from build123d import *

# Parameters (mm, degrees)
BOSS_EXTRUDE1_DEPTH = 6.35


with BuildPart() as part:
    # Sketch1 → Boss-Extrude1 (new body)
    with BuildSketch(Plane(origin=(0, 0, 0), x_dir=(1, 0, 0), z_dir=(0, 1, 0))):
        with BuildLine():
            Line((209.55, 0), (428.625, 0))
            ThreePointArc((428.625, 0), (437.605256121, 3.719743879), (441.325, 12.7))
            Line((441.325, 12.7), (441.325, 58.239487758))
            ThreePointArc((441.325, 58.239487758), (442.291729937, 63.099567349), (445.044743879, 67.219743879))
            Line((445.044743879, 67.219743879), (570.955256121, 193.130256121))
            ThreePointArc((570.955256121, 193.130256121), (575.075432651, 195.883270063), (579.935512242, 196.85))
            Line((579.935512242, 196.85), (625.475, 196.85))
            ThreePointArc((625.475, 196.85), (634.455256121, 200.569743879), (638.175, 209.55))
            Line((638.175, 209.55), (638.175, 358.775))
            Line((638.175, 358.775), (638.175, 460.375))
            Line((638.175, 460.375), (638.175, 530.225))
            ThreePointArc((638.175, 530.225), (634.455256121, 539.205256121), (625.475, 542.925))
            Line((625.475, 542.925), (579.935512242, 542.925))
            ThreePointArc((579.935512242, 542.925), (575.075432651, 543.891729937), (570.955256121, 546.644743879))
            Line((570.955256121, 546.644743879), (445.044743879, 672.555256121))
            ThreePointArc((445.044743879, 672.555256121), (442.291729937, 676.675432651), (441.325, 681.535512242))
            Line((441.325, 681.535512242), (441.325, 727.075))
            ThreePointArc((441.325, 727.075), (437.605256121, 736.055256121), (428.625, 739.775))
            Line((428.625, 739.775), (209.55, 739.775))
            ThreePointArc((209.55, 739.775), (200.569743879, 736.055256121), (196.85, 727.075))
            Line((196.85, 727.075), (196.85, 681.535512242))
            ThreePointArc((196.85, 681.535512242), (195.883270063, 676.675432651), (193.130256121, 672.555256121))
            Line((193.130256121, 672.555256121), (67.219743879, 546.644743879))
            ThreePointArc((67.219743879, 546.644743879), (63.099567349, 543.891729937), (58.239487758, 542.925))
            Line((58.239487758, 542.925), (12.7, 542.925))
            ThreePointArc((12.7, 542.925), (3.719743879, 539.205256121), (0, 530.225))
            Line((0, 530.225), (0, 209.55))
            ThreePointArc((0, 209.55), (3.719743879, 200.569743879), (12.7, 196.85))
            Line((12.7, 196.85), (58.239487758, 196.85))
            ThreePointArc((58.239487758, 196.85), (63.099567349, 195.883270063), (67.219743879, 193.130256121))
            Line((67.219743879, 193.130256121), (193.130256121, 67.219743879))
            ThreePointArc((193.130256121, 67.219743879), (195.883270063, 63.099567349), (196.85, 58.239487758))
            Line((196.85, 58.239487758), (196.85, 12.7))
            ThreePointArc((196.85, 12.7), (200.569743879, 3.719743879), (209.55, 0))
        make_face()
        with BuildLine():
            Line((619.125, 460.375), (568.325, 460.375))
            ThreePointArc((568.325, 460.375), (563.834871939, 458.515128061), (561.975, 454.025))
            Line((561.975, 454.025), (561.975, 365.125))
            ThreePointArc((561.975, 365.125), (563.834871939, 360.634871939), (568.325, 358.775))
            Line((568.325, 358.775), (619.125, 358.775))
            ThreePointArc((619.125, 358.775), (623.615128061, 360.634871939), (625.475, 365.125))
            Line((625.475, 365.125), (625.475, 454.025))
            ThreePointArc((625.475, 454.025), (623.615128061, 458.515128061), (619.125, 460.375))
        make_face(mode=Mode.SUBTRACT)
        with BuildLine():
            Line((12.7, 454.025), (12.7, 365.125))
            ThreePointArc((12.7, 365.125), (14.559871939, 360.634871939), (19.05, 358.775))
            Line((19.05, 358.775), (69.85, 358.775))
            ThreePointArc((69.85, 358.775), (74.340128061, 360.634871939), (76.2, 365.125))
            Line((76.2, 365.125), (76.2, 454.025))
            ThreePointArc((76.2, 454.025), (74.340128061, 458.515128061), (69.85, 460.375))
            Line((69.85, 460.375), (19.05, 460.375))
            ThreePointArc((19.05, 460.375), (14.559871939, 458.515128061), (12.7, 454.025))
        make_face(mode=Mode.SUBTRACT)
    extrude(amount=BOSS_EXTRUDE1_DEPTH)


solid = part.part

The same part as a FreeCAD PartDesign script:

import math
import FreeCAD as App
import Part
import Sketcher

V = App.Vector
Q = App.Units.Quantity

doc = App.newDocument("Part")
body = doc.addObject("PartDesign::Body", "Body")

# Sketch on XZ plane
sketch1 = body.newObject("Sketcher::SketchObject", "Sketch")
sketch1.AttachmentSupport = (doc.getObject("XZ_Plane"), [""])
sketch1.MapMode = "FlatFace"
sketch1.addGeometry(Part.LineSegment(V(210, 0, 0), V(429, 0, 0)), False)
sketch1.addGeometry(Part.ArcOfCircle(Part.Circle(V(429, -13, 0), V(0, 0, 1), 13), math.radians(0), math.radians(90)), False)
sketch1.addGeometry(Part.LineSegment(V(441, -13, 0), V(441, -58, 0)), False)
sketch1.addGeometry(Part.ArcOfCircle(Part.Circle(V(454, -58, 0), V(0, 0, 1), 13), math.radians(180), math.radians(225)), False)
sketch1.addGeometry(Part.LineSegment(V(445, -67, 0), V(571, -193, 0)), False)
sketch1.addGeometry(Part.ArcOfCircle(Part.Circle(V(580, -184, 0), V(0, 0, 1), 13), math.radians(-135), math.radians(-90)), False)
sketch1.addGeometry(Part.LineSegment(V(580, -197, 0), V(625, -197, 0)), False)
sketch1.addGeometry(Part.ArcOfCircle(Part.Circle(V(625, -210, 0), V(0, 0, 1), 13), math.radians(0), math.radians(90)), False)
sketch1.addGeometry(Part.LineSegment(V(638, -210, 0), V(638, -530, 0)), False)
sketch1.addGeometry(Part.ArcOfCircle(Part.Circle(V(625, -530, 0), V(0, 0, 1), 13), math.radians(-90), math.radians(0)), False)
sketch1.addGeometry(Part.LineSegment(V(625, -543, 0), V(580, -543, 0)), False)
sketch1.addGeometry(Part.ArcOfCircle(Part.Circle(V(580, -556, 0), V(0, 0, 1), 13), math.radians(90), math.radians(135)), False)
sketch1.addGeometry(Part.LineSegment(V(571, -547, 0), V(445, -673, 0)), False)
sketch1.addGeometry(Part.ArcOfCircle(Part.Circle(V(454, -682, 0), V(0, 0, 1), 13), math.radians(135), math.radians(180)), False)
sketch1.addGeometry(Part.LineSegment(V(441, -682, 0), V(441, -727, 0)), False)
sketch1.addGeometry(Part.ArcOfCircle(Part.Circle(V(429, -727, 0), V(0, 0, 1), 13), math.radians(-90), math.radians(0)), False)
sketch1.addGeometry(Part.LineSegment(V(429, -740, 0), V(210, -740, 0)), False)
sketch1.addGeometry(Part.ArcOfCircle(Part.Circle(V(210, -727, 0), V(0, 0, 1), 13), math.radians(180), math.radians(270)), False)
sketch1.addGeometry(Part.LineSegment(V(197, -727, 0), V(197, -682, 0)), False)
sketch1.addGeometry(Part.ArcOfCircle(Part.Circle(V(184, -682, 0), V(0, 0, 1), 13), math.radians(0), math.radians(45)), False)
sketch1.addGeometry(Part.LineSegment(V(193, -673, 0), V(67, -547, 0)), False)
sketch1.addGeometry(Part.ArcOfCircle(Part.Circle(V(58, -556, 0), V(0, 0, 1), 13), math.radians(45), math.radians(90)), False)
sketch1.addGeometry(Part.LineSegment(V(58, -543, 0), V(13, -543, 0)), False)
sketch1.addGeometry(Part.ArcOfCircle(Part.Circle(V(13, -530, 0), V(0, 0, 1), 13), math.radians(180), math.radians(270)), False)
sketch1.addGeometry(Part.LineSegment(V(0, -530, 0), V(0, -210, 0)), False)
sketch1.addGeometry(Part.ArcOfCircle(Part.Circle(V(13, -210, 0), V(0, 0, 1), 13), math.radians(90), math.radians(180)), False)
sketch1.addGeometry(Part.LineSegment(V(13, -197, 0), V(58, -197, 0)), False)
sketch1.addGeometry(Part.ArcOfCircle(Part.Circle(V(58, -184, 0), V(0, 0, 1), 13), math.radians(-90), math.radians(-45)), False)
sketch1.addGeometry(Part.LineSegment(V(67, -193, 0), V(193, -67, 0)), False)
sketch1.addGeometry(Part.ArcOfCircle(Part.Circle(V(184, -58, 0), V(0, 0, 1), 13), math.radians(-45), math.radians(0)), False)
sketch1.addGeometry(Part.LineSegment(V(197, -58, 0), V(197, -13, 0)), False)
sketch1.addGeometry(Part.ArcOfCircle(Part.Circle(V(210, -13, 0), V(0, 0, 1), 13), math.radians(90), math.radians(180)), False)
sketch1.addGeometry(Part.LineSegment(V(13, -365, 0), V(13, -454, 0)), False)
sketch1.addGeometry(Part.ArcOfCircle(Part.Circle(V(19, -454, 0), V(0, 0, 1), 6), math.radians(180), math.radians(270)), False)
sketch1.addGeometry(Part.LineSegment(V(19, -460, 0), V(70, -460, 0)), False)
sketch1.addGeometry(Part.ArcOfCircle(Part.Circle(V(70, -454, 0), V(0, 0, 1), 6), math.radians(-90), math.radians(0)), False)
sketch1.addGeometry(Part.LineSegment(V(76, -454, 0), V(76, -365, 0)), False)
sketch1.addGeometry(Part.ArcOfCircle(Part.Circle(V(70, -365, 0), V(0, 0, 1), 6), math.radians(0), math.radians(90)), False)
sketch1.addGeometry(Part.LineSegment(V(70, -359, 0), V(19, -359, 0)), False)
sketch1.addGeometry(Part.ArcOfCircle(Part.Circle(V(19, -365, 0), V(0, 0, 1), 6), math.radians(90), math.radians(180)), False)
sketch1.addGeometry(Part.LineSegment(V(568, -460, 0), V(619, -460, 0)), False)
sketch1.addGeometry(Part.ArcOfCircle(Part.Circle(V(619, -454, 0), V(0, 0, 1), 6), math.radians(-90), math.radians(0)), False)
sketch1.addGeometry(Part.LineSegment(V(625, -454, 0), V(625, -365, 0)), False)
sketch1.addGeometry(Part.ArcOfCircle(Part.Circle(V(619, -365, 0), V(0, 0, 1), 6), math.radians(0), math.radians(90)), False)
sketch1.addGeometry(Part.LineSegment(V(619, -359, 0), V(568, -359, 0)), False)
sketch1.addGeometry(Part.ArcOfCircle(Part.Circle(V(568, -365, 0), V(0, 0, 1), 6), math.radians(90), math.radians(180)), False)
sketch1.addGeometry(Part.LineSegment(V(562, -365, 0), V(562, -454, 0)), False)
sketch1.addGeometry(Part.ArcOfCircle(Part.Circle(V(568, -454, 0), V(0, 0, 1), 6), math.radians(180), math.radians(270)), False)
sketch1.addConstraint(Sketcher.Constraint("Tangent", 0, 2, 1, 2))
sketch1.addConstraint(Sketcher.Constraint("Tangent", 1, 1, 2, 1))
sketch1.addConstraint(Sketcher.Constraint("Tangent", 2, 2, 3, 1))
sketch1.addConstraint(Sketcher.Constraint("Tangent", 3, 2, 4, 1))
sketch1.addConstraint(Sketcher.Constraint("Tangent", 4, 2, 5, 1))
sketch1.addConstraint(Sketcher.Constraint("Tangent", 5, 2, 6, 1))
sketch1.addConstraint(Sketcher.Constraint("Tangent", 6, 2, 7, 2))
sketch1.addConstraint(Sketcher.Constraint("Tangent", 7, 1, 8, 1))
sketch1.addConstraint(Sketcher.Constraint("Tangent", 8, 2, 9, 2))
sketch1.addConstraint(Sketcher.Constraint("Tangent", 9, 1, 10, 1))
sketch1.addConstraint(Sketcher.Constraint("Tangent", 10, 2, 11, 1))
sketch1.addConstraint(Sketcher.Constraint("Tangent", 11, 2, 12, 1))
sketch1.addConstraint(Sketcher.Constraint("Tangent", 12, 2, 13, 1))
sketch1.addConstraint(Sketcher.Constraint("Tangent", 13, 2, 14, 1))
sketch1.addConstraint(Sketcher.Constraint("Tangent", 14, 2, 15, 2))
sketch1.addConstraint(Sketcher.Constraint("Tangent", 15, 1, 16, 1))
sketch1.addConstraint(Sketcher.Constraint("Tangent", 16, 2, 17, 2))
sketch1.addConstraint(Sketcher.Constraint("Tangent", 17, 1, 18, 1))
sketch1.addConstraint(Sketcher.Constraint("Tangent", 18, 2, 19, 1))
sketch1.addConstraint(Sketcher.Constraint("Tangent", 19, 2, 20, 1))
sketch1.addConstraint(Sketcher.Constraint("Tangent", 20, 2, 21, 1))
sketch1.addConstraint(Sketcher.Constraint("Tangent", 21, 2, 22, 1))
sketch1.addConstraint(Sketcher.Constraint("Tangent", 22, 2, 23, 2))
sketch1.addConstraint(Sketcher.Constraint("Tangent", 23, 1, 24, 1))
sketch1.addConstraint(Sketcher.Constraint("Tangent", 24, 2, 25, 2))
sketch1.addConstraint(Sketcher.Constraint("Tangent", 25, 1, 26, 1))
sketch1.addConstraint(Sketcher.Constraint("Tangent", 26, 2, 27, 1))
sketch1.addConstraint(Sketcher.Constraint("Tangent", 27, 2, 28, 1))
sketch1.addConstraint(Sketcher.Constraint("Tangent", 28, 2, 29, 1))
sketch1.addConstraint(Sketcher.Constraint("Tangent", 29, 2, 30, 1))
sketch1.addConstraint(Sketcher.Constraint("Tangent", 30, 2, 31, 2))
sketch1.addConstraint(Sketcher.Constraint("Tangent", 31, 1, 0, 1))
sketch1.addConstraint(Sketcher.Constraint("Tangent", 32, 2, 33, 1))
sketch1.addConstraint(Sketcher.Constraint("Tangent", 33, 2, 34, 1))
sketch1.addConstraint(Sketcher.Constraint("Tangent", 34, 2, 35, 1))
sketch1.addConstraint(Sketcher.Constraint("Tangent", 35, 2, 36, 1))
sketch1.addConstraint(Sketcher.Constraint("Tangent", 36, 2, 37, 1))
sketch1.addConstraint(Sketcher.Constraint("Tangent", 37, 2, 38, 1))
sketch1.addConstraint(Sketcher.Constraint("Tangent", 38, 2, 39, 1))
sketch1.addConstraint(Sketcher.Constraint("Tangent", 39, 2, 32, 1))
sketch1.addConstraint(Sketcher.Constraint("Tangent", 40, 2, 41, 1))
sketch1.addConstraint(Sketcher.Constraint("Tangent", 41, 2, 42, 1))
sketch1.addConstraint(Sketcher.Constraint("Tangent", 42, 2, 43, 1))
sketch1.addConstraint(Sketcher.Constraint("Tangent", 43, 2, 44, 1))
sketch1.addConstraint(Sketcher.Constraint("Tangent", 44, 2, 45, 1))
sketch1.addConstraint(Sketcher.Constraint("Tangent", 45, 2, 46, 1))
sketch1.addConstraint(Sketcher.Constraint("Tangent", 46, 2, 47, 1))
sketch1.addConstraint(Sketcher.Constraint("Tangent", 47, 2, 40, 1))
sketch1.addConstraint(Sketcher.Constraint("Horizontal", 0))
sketch1.addConstraint(Sketcher.Constraint("Vertical", 2))
sketch1.addConstraint(Sketcher.Constraint("Horizontal", 6))
sketch1.addConstraint(Sketcher.Constraint("Vertical", 8))
sketch1.addConstraint(Sketcher.Constraint("Horizontal", 10))
sketch1.addConstraint(Sketcher.Constraint("Vertical", 14))
sketch1.addConstraint(Sketcher.Constraint("Horizontal", 16))
sketch1.addConstraint(Sketcher.Constraint("Vertical", 18))
sketch1.addConstraint(Sketcher.Constraint("Horizontal", 22))
sketch1.addConstraint(Sketcher.Constraint("Vertical", 24))
sketch1.addConstraint(Sketcher.Constraint("Horizontal", 26))
sketch1.addConstraint(Sketcher.Constraint("Vertical", 30))
sketch1.addConstraint(Sketcher.Constraint("Vertical", 32))
sketch1.addConstraint(Sketcher.Constraint("Horizontal", 34))
sketch1.addConstraint(Sketcher.Constraint("Vertical", 36))
sketch1.addConstraint(Sketcher.Constraint("Horizontal", 38))
sketch1.addConstraint(Sketcher.Constraint("Horizontal", 40))
sketch1.addConstraint(Sketcher.Constraint("Vertical", 42))
sketch1.addConstraint(Sketcher.Constraint("Horizontal", 44))
sketch1.addConstraint(Sketcher.Constraint("Vertical", 46))
sketch1.addConstraint(Sketcher.Constraint("Equal", 1, 3))
sketch1.addConstraint(Sketcher.Constraint("Equal", 3, 5))
sketch1.addConstraint(Sketcher.Constraint("Equal", 5, 7))
sketch1.addConstraint(Sketcher.Constraint("Equal", 7, 9))
sketch1.addConstraint(Sketcher.Constraint("Equal", 9, 11))
sketch1.addConstraint(Sketcher.Constraint("Equal", 11, 13))
sketch1.addConstraint(Sketcher.Constraint("Equal", 13, 15))
sketch1.addConstraint(Sketcher.Constraint("Equal", 15, 17))
sketch1.addConstraint(Sketcher.Constraint("Equal", 17, 19))
sketch1.addConstraint(Sketcher.Constraint("Equal", 19, 21))
sketch1.addConstraint(Sketcher.Constraint("Equal", 21, 23))
sketch1.addConstraint(Sketcher.Constraint("Equal", 23, 25))
sketch1.addConstraint(Sketcher.Constraint("Equal", 25, 27))
sketch1.addConstraint(Sketcher.Constraint("Equal", 27, 29))
sketch1.addConstraint(Sketcher.Constraint("Equal", 29, 31))
sketch1.addConstraint(Sketcher.Constraint("Equal", 33, 35))
sketch1.addConstraint(Sketcher.Constraint("Equal", 35, 37))
sketch1.addConstraint(Sketcher.Constraint("Equal", 37, 39))
sketch1.addConstraint(Sketcher.Constraint("Equal", 39, 41))
sketch1.addConstraint(Sketcher.Constraint("Equal", 41, 43))
sketch1.addConstraint(Sketcher.Constraint("Equal", 43, 45))
sketch1.addConstraint(Sketcher.Constraint("Equal", 45, 47))
sketch1.addConstraint(Sketcher.Constraint("PointOnObject", 0, 2, -1))
sketch1.addConstraint(Sketcher.Constraint("PointOnObject", 23, 1, -2))
sketch1.addConstraint(Sketcher.Constraint("Perpendicular", 4, 12))
sketch1.addConstraint(Sketcher.Constraint("Perpendicular", 12, 20))
sketch1.addConstraint(Sketcher.Constraint("Perpendicular", 20, 28))
sketch1.addConstraint(Sketcher.Constraint("Horizontal", 13, 3, 19, 3))
sketch1.addConstraint(Sketcher.Constraint("Horizontal", 11, 3, 21, 3))
sketch1.addConstraint(Sketcher.Constraint("Horizontal", 7, 3, 25, 3))
sketch1.addConstraint(Sketcher.Constraint("Horizontal", 3, 3, 29, 3))
sketch1.addConstraint(Sketcher.Constraint("Horizontal", 35, 3, 41, 3))
sketch1.addConstraint(Sketcher.Constraint("Horizontal", 39, 3, 43, 3))
sketch1.addConstraint(Sketcher.Constraint("Horizontal", 12, 2, 19, 2))
sketch1.addConstraint(Sketcher.Constraint("Vertical", 5, 3, 11, 3))
sketch1.addConstraint(Sketcher.Constraint("Vertical", 3, 3, 13, 3))
sketch1.addConstraint(Sketcher.Constraint("Vertical", 21, 3, 27, 3))
sketch1.addConstraint(Sketcher.Constraint("Vertical", 25, 1, 32, 2))
sketch1.addConstraint(Sketcher.Constraint("Vertical", 9, 1, 41, 2))
sketch1.addConstraint(Sketcher.Constraint("Equal", 10, 22))
sketch1.addConstraint(Sketcher.Constraint("Equal", 38, 40))
sketch1.addConstraint(Sketcher.Constraint("Equal", 26, 2))
sketch1.addConstraint(Sketcher.Constraint("Equal", 2, 14))
sketch1.addConstraint(Sketcher.Constraint("Radius", 1, Q("0.5 in")))
sketch1.addConstraint(Sketcher.Constraint("DistanceX", 34, 1, 34, 2, Q("2 in")))
sketch1.addConstraint(Sketcher.Constraint("Radius", 33, Q("0.25 in")))
sketch1.addConstraint(Sketcher.Constraint("DistanceY", 32, 2, 32, 1, Q("3.5 in")))
sketch1.addConstraint(Sketcher.Constraint("DistanceX", 0, 1, 0, 2, Q("8.625 in")))
sketch1.addConstraint(Sketcher.Constraint("DistanceY", 8, 2, 8, 1, Q("12.625 in")))
sketch1.addConstraint(Sketcher.Constraint("DistanceY", 5, 3, -1, 1, Q("7.25 in")))
sketch1.addConstraint(Sketcher.Constraint("DistanceY", 33, 3, -1, 1, Q("17.875 in")))
sketch1.addConstraint(Sketcher.Constraint("DistanceX", 6, 1, 6, 2, 45.539488))
pad1 = body.newObject("PartDesign::Pad", "Pad")
pad1.Profile = sketch1
pad1.Length = Q("0.25 in")
pad1.Reversed = True

doc.recompute()
